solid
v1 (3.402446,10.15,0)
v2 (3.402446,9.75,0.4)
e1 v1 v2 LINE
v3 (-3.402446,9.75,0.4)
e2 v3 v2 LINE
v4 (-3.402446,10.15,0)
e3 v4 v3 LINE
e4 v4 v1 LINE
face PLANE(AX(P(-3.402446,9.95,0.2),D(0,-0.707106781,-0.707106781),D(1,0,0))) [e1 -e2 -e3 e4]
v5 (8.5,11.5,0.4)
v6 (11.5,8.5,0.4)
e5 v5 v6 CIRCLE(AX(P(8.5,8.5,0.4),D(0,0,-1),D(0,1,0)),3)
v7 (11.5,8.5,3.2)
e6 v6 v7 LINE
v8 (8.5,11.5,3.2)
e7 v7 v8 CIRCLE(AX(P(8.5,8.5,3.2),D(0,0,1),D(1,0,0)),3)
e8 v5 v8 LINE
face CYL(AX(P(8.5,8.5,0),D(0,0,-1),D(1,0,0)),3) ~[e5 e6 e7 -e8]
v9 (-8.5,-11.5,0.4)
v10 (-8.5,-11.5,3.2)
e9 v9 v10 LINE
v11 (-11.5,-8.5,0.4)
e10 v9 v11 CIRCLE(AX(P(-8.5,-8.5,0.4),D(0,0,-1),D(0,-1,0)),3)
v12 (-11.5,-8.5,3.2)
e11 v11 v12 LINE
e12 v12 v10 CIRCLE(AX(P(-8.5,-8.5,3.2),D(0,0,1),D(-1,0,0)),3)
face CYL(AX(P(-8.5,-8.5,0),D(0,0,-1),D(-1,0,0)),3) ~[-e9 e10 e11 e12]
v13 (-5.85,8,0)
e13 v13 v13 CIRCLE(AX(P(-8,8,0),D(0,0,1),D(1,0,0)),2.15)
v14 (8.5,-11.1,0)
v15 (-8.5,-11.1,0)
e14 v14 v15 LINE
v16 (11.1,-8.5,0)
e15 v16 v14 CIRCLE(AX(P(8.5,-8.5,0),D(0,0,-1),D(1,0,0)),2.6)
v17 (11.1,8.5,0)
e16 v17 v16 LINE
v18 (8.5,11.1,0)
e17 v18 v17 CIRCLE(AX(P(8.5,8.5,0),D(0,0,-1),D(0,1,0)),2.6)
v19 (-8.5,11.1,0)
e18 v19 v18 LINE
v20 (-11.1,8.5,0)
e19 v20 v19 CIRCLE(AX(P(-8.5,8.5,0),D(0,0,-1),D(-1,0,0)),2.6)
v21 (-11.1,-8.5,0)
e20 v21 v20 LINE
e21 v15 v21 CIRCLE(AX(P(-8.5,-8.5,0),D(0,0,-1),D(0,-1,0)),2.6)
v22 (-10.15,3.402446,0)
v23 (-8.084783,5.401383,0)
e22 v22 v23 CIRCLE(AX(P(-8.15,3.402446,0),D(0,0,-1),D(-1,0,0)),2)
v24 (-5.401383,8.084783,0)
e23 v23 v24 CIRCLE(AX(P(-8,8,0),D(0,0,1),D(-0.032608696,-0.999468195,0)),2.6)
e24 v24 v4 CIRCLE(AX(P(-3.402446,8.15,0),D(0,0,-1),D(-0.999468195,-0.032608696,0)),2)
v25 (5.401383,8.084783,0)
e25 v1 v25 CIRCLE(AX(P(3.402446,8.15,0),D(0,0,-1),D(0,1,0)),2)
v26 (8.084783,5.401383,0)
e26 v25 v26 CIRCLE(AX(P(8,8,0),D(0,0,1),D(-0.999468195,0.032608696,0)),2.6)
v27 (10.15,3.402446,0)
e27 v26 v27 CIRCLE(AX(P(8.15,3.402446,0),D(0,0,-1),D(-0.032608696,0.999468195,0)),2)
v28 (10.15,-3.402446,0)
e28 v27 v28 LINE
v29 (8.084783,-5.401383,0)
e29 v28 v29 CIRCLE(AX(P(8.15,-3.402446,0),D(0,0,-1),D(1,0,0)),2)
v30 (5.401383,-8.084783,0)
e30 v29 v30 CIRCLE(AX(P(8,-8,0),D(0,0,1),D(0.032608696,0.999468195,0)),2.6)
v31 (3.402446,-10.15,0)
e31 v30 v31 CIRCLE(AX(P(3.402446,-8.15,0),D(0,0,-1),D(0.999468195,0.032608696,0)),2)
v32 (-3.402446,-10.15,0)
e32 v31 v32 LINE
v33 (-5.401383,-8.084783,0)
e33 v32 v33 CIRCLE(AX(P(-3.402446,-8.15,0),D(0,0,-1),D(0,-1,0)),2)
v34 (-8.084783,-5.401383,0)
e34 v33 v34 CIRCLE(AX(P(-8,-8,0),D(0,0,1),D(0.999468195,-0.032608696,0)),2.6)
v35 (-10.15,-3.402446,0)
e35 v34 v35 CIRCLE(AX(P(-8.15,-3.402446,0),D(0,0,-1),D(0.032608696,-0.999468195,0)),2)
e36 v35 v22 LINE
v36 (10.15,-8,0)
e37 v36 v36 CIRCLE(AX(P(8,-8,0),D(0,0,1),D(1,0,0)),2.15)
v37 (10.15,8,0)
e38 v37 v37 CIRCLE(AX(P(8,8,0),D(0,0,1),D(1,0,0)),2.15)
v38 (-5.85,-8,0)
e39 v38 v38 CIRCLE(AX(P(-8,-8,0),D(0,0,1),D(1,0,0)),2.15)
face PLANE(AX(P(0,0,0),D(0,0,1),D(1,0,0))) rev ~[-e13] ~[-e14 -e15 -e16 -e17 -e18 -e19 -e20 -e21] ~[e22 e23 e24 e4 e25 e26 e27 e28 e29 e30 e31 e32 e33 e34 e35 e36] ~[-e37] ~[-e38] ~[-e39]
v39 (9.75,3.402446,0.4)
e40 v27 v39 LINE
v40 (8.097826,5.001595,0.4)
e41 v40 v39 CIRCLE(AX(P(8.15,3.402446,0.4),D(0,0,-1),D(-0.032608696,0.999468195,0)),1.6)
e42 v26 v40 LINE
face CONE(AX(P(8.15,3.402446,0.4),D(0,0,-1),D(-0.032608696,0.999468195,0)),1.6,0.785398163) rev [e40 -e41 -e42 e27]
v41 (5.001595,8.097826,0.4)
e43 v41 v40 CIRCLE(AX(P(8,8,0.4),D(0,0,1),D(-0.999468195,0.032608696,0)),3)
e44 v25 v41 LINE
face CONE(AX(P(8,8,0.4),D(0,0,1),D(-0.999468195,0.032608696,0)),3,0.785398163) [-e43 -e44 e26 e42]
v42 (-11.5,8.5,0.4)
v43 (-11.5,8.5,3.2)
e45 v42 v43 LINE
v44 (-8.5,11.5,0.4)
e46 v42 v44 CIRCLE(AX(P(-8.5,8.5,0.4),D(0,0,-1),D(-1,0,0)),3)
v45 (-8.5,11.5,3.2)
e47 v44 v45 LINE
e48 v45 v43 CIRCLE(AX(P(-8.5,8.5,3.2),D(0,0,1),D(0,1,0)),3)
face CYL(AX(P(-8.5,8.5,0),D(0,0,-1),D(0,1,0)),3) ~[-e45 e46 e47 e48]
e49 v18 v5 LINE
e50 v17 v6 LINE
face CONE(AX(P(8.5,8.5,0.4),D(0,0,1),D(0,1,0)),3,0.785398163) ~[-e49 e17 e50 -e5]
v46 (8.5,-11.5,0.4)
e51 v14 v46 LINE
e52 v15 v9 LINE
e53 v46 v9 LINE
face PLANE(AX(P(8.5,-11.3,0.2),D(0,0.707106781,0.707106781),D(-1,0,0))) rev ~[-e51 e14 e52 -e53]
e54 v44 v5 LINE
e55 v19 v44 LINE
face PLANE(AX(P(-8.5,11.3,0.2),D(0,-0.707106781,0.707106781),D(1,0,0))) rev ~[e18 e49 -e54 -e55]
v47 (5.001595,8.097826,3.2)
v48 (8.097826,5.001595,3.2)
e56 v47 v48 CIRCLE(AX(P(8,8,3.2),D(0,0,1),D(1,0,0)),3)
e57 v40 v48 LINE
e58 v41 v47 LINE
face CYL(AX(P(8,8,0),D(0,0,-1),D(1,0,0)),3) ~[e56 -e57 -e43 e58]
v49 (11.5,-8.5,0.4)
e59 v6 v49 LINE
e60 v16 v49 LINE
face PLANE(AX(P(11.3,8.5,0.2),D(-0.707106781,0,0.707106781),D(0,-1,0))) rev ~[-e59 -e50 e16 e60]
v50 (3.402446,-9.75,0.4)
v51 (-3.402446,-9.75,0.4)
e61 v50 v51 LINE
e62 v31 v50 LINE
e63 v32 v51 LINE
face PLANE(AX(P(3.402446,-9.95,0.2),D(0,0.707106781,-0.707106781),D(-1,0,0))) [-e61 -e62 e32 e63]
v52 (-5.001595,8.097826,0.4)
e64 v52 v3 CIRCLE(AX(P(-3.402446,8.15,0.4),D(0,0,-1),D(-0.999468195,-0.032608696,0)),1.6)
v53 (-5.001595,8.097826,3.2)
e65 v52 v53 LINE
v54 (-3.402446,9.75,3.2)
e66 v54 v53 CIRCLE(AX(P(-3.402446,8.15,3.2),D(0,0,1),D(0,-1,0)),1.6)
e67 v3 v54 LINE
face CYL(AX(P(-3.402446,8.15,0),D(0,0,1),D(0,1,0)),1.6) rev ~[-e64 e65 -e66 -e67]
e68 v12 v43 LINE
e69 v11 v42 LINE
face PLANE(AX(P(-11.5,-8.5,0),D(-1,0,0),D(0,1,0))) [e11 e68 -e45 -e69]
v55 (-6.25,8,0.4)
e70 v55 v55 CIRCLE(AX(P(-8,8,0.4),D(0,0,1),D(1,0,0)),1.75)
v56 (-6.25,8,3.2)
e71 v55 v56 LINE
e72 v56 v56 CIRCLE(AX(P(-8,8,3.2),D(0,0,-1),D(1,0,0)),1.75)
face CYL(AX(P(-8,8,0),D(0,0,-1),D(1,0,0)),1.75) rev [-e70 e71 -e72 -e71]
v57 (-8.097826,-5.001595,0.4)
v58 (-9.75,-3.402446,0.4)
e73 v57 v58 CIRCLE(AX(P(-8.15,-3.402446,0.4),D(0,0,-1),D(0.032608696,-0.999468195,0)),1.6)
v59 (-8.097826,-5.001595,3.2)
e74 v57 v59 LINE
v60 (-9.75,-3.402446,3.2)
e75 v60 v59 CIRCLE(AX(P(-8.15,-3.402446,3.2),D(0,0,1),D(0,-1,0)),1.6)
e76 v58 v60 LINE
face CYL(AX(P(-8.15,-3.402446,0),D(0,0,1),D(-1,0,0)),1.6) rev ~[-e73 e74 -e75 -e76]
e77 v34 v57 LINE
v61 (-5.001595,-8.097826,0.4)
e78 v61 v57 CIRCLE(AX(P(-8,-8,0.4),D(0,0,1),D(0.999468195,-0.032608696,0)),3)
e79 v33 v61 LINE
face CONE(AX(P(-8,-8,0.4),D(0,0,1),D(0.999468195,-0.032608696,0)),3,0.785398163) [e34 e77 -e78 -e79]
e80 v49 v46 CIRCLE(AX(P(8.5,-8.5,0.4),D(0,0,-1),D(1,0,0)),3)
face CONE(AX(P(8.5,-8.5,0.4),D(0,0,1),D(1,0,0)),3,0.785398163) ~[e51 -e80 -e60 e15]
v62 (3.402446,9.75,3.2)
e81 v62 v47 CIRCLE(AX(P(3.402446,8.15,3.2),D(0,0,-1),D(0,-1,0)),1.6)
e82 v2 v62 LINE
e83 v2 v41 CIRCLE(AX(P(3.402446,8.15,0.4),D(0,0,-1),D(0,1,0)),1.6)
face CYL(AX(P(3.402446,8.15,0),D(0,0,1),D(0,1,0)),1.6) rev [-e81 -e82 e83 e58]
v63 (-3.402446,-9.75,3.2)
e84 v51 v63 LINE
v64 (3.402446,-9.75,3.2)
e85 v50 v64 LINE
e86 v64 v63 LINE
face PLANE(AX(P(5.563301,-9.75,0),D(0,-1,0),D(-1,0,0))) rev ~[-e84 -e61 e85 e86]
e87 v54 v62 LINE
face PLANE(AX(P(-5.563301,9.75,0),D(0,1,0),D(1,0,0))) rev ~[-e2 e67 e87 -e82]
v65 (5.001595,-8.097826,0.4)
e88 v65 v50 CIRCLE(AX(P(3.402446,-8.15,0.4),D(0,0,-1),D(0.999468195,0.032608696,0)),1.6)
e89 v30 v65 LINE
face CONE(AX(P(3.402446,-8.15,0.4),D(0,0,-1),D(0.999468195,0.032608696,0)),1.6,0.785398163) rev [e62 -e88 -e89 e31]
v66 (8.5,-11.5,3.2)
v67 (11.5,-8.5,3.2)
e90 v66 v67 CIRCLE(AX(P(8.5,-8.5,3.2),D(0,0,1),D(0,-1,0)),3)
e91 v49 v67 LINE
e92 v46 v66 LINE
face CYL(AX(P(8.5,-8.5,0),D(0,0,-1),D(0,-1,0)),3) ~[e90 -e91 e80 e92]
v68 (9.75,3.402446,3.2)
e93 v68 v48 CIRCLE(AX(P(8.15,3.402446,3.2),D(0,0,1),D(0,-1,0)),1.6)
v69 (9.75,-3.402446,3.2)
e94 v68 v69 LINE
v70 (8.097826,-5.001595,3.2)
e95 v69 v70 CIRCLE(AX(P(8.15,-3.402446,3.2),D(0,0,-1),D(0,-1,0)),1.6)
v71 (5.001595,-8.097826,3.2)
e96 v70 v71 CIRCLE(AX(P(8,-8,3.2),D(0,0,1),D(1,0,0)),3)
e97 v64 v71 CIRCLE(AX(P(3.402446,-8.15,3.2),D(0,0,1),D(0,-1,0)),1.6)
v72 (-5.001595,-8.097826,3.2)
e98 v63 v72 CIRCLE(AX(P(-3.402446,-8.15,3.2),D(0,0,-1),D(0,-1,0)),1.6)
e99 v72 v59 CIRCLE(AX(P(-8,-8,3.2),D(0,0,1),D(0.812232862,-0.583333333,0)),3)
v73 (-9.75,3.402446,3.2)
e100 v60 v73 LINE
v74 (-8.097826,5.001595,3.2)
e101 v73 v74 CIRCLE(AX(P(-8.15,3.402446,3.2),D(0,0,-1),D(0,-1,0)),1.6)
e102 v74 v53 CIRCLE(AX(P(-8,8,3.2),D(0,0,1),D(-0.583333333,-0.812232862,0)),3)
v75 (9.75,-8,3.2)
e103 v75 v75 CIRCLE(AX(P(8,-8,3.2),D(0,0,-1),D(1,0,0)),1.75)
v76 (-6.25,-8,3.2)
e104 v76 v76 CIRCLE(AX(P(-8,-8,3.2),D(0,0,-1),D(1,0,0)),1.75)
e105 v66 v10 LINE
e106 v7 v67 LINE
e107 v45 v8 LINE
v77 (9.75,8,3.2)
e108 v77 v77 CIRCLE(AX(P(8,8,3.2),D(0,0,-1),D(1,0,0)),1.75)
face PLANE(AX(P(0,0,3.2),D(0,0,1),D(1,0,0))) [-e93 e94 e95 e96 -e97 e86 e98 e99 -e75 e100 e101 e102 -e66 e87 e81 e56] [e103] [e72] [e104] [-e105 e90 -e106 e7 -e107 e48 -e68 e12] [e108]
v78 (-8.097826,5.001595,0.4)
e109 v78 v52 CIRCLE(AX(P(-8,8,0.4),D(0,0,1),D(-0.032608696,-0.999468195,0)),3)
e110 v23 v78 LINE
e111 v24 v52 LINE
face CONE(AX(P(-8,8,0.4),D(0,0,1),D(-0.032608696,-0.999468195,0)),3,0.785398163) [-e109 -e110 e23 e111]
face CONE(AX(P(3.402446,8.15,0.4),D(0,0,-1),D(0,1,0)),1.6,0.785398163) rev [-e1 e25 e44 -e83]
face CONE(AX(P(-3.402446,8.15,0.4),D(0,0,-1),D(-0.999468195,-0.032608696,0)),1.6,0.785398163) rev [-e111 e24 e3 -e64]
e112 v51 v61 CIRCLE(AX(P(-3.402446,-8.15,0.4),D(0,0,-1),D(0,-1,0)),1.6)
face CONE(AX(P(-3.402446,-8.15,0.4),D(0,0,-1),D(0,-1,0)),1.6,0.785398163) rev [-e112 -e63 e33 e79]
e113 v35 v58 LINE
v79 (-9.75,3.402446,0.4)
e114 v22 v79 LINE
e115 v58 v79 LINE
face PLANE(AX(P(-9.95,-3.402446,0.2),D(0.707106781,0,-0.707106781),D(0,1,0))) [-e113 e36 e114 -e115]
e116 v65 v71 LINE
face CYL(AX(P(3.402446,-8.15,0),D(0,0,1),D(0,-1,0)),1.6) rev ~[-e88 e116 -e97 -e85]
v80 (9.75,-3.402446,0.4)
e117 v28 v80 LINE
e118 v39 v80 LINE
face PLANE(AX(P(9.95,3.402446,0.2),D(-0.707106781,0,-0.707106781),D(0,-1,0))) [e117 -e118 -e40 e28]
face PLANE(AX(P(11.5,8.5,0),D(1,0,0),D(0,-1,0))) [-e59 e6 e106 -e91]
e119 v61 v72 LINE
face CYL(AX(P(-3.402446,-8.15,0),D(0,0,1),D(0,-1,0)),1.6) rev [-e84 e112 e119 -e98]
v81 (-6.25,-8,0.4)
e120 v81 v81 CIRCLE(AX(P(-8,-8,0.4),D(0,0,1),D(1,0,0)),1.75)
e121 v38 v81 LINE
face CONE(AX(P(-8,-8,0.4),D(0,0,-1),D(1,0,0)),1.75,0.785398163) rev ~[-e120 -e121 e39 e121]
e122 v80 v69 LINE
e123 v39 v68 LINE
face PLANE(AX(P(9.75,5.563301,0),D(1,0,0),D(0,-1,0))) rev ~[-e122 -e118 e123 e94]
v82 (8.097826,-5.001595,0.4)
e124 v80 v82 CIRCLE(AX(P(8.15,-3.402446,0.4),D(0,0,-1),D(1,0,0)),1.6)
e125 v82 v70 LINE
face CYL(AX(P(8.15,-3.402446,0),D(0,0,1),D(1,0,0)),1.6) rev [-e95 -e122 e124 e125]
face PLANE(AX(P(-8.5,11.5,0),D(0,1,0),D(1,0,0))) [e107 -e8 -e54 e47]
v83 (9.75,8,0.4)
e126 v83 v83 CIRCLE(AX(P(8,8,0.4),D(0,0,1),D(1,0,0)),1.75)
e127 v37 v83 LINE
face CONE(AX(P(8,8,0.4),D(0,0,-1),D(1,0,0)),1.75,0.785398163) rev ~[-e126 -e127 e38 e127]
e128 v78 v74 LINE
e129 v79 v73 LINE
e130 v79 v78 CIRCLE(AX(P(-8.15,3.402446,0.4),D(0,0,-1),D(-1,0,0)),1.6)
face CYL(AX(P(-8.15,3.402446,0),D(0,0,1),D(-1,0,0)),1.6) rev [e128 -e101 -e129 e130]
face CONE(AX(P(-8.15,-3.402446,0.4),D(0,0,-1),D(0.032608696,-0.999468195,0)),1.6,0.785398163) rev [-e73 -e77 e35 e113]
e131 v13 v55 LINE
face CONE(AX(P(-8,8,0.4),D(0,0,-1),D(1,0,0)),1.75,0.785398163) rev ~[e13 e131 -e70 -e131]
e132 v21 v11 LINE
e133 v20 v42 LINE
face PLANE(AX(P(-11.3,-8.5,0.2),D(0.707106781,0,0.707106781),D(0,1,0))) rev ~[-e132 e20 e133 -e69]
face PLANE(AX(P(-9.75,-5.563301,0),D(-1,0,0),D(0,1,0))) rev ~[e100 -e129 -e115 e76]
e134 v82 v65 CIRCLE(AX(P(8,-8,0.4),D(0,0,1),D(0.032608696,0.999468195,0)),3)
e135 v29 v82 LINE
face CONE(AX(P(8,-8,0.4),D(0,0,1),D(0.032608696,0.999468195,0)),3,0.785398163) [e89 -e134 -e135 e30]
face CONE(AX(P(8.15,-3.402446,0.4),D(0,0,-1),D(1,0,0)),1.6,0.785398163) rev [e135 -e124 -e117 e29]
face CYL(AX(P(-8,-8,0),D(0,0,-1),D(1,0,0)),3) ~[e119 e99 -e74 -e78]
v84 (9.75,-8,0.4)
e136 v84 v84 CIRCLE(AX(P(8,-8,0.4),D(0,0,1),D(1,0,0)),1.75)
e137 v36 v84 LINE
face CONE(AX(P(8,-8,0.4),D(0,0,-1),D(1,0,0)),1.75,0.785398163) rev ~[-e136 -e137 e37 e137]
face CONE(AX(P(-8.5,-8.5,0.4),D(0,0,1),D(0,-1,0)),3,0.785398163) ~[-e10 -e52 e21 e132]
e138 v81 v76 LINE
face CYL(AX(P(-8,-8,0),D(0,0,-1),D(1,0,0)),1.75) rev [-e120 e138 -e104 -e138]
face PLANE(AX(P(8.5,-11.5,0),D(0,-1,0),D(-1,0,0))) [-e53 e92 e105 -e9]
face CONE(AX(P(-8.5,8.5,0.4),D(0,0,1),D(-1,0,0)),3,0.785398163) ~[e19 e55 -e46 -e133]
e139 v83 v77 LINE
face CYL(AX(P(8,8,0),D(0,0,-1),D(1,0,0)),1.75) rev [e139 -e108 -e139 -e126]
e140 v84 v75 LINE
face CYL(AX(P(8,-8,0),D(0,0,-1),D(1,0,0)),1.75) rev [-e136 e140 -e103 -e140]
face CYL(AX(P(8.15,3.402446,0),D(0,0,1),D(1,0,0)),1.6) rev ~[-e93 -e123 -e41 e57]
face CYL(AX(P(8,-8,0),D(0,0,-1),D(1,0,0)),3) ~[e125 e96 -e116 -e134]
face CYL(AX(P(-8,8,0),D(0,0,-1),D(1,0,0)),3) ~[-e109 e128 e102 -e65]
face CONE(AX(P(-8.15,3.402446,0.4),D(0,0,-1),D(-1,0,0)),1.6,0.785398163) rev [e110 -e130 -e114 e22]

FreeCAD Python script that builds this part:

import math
import FreeCAD as App
import Part
import Sketcher
from FreeCAD import Vector


def edges_at(feature, points):
    """Names of the edges that pass closest to the given points."""
    edges = feature.Shape.Edges
    near = lambda p: min(range(len(edges)), key=lambda i: edges[i].distToShape(Part.Vertex(*p))[0])
    return sorted({f"Edge{near(p) + 1}" for p in points})

doc = App.newDocument("Part")
body = doc.addObject("PartDesign::Body", "Body")

sketch1 = body.newObject("Sketcher::SketchObject", "Sketch")
sketch1.AttachmentSupport = (doc.getObject("XY_Plane"), [""])
sketch1.MapMode = "FlatFace"
sketch1.addGeometry([
    Part.LineSegment(Vector(-8.5, -11.5, 0), Vector(8.5, -11.5, 0)),
    Part.ArcOfCircle(Part.Circle(Vector(8.5, -8.5, 0), Vector(0, 0, 1), 3), math.radians(-90), math.radians(0)),
    Part.LineSegment(Vector(11.5, -8.5, 0), Vector(11.5, 8.5, 0)),
    Part.ArcOfCircle(Part.Circle(Vector(8.5, 8.5, 0), Vector(0, 0, 1), 3), math.radians(0), math.radians(90)),
    Part.LineSegment(Vector(8.5, 11.5, 0), Vector(-8.5, 11.5, 0)),
    Part.ArcOfCircle(Part.Circle(Vector(-8.5, 8.5, 0), Vector(0, 0, 1), 3), math.radians(90), math.radians(180)),
    Part.LineSegment(Vector(-11.5, 8.5, 0), Vector(-11.5, -8.5, 0)),
    Part.ArcOfCircle(Part.Circle(Vector(-8.5, -8.5, 0), Vector(0, 0, 1), 3), math.radians(180), math.radians(270)),
    Part.LineSegment(Vector(-9.8, -5.6, 0), Vector(-9.8, 5.6, 0)),
    Part.ArcOfCircle(Part.Circle(Vector(-8, 8, 0), Vector(0, 0, 1), 3), math.radians(-126), math.radians(36)),
    Part.LineSegment(Vector(-5.6, 9.8, 0), Vector(5.6, 9.8, 0)),
    Part.ArcOfCircle(Part.Circle(Vector(8, 8, 0), Vector(0, 0, 1), 3), math.radians(144), math.radians(306)),
    Part.LineSegment(Vector(9.8, 5.6, 0), Vector(9.8, -5.6, 0)),
    Part.ArcOfCircle(Part.Circle(Vector(8, -8, 0), Vector(0, 0, 1), 3), math.radians(54), math.radians(216)),
    Part.LineSegment(Vector(5.6, -9.8, 0), Vector(-5.6, -9.8, 0)),
    Part.ArcOfCircle(Part.Circle(Vector(-8, -8, 0), Vector(0, 0, 1), 3), math.radians(-36), math.radians(126)),
    Part.Circle(Vector(-8, 8, 0), Vector(0, 0, 1), 1.8),
    Part.Circle(Vector(-8, -8, 0), Vector(0, 0, 1), 1.8),
    Part.Circle(Vector(8, -8, 0), Vector(0, 0, 1), 1.8),
    Part.Circle(Vector(8, 8, 0), Vector(0, 0, 1), 1.8),
], False)
sketch1.addConstraint([
    Sketcher.Constraint("Tangent", 0, 2, 1, 1),
    Sketcher.Constraint("Tangent", 1, 2, 2, 1),
    Sketcher.Constraint("Tangent", 2, 2, 3, 1),
    Sketcher.Constraint("Tangent", 3, 2, 4, 1),
    Sketcher.Constraint("Tangent", 4, 2, 5, 1),
    Sketcher.Constraint("Tangent", 5, 2, 6, 1),
    Sketcher.Constraint("Tangent", 6, 2, 7, 1),
    Sketcher.Constraint("Tangent", 7, 2, 0, 1),
    Sketcher.Constraint("Coincident", 8, 2, 9, 1),
    Sketcher.Constraint("Coincident", 9, 2, 10, 1),
    Sketcher.Constraint("Coincident", 10, 2, 11, 1),
    Sketcher.Constraint("Coincident", 11, 2, 12, 1),
    Sketcher.Constraint("Coincident", 12, 2, 13, 1),
    Sketcher.Constraint("Coincident", 13, 2, 14, 1),
    Sketcher.Constraint("Coincident", 14, 2, 15, 1),
    Sketcher.Constraint("Coincident", 15, 2, 8, 1),
    Sketcher.Constraint("Horizontal", 0),
    Sketcher.Constraint("Vertical", 2),
    Sketcher.Constraint("Horizontal", 4),
    Sketcher.Constraint("Vertical", 6),
    Sketcher.Constraint("Vertical", 8),
    Sketcher.Constraint("Horizontal", 10),
    Sketcher.Constraint("Vertical", 12),
    Sketcher.Constraint("Horizontal", 14),
    Sketcher.Constraint("Coincident", 16, 3, 9, 3),
    Sketcher.Constraint("Coincident", 17, 3, 15, 3),
    Sketcher.Constraint("Coincident", 18, 3, 13, 3),
    Sketcher.Constraint("Coincident", 19, 3, 11, 3),
    Sketcher.Constraint("Equal", 1, 3),
    Sketcher.Constraint("Equal", 3, 5),
    Sketcher.Constraint("Equal", 5, 7),
    Sketcher.Constraint("Equal", 7, 9),
    Sketcher.Constraint("Equal", 9, 11),
    Sketcher.Constraint("Equal", 11, 13),
    Sketcher.Constraint("Equal", 13, 15),
    Sketcher.Constraint("Equal", 16, 17),
    Sketcher.Constraint("Equal", 17, 18),
    Sketcher.Constraint("Equal", 18, 19),
    Sketcher.Constraint("Symmetric", 1, 3, 5, 3, -1, 1),
    Sketcher.Constraint("Symmetric", 9, 3, 13, 3, -1, 1),
    Sketcher.Constraint("Symmetric", 11, 3, 15, 3, -1, 1),
    Sketcher.Constraint("Symmetric", 9, 3, 11, 3, -2),
    Sketcher.Constraint("Horizontal", 8, 2, 11, 2),
    Sketcher.Constraint("Vertical", 10, 2, 13, 2),
    Sketcher.Constraint("Equal", 4, 2),
    Sketcher.Constraint("Equal", 14, 8),
    Sketcher.Constraint("Radius", 1, 3.0),
    Sketcher.Constraint("Diameter", 16, 3.5),
    Sketcher.Constraint("DistanceX", 9, 3, 11, 3, 16.0),
    Sketcher.Constraint("DistanceY", 13, 3, 11, 3, 16.0),
    Sketcher.Constraint("DistanceY", 0, 2, 13, 3, 3.5),
    Sketcher.Constraint("DistanceX", 8, 2, -1, 1, 9.75),
])
pad1 = body.newObject("PartDesign::Pad", "Pad")
pad1.Profile = sketch1
pad1.Length = 3.2
doc.recompute()

fillet = body.newObject("PartDesign::Fillet", "Fillet")
fillet.Base = (pad1, edges_at(pad1, [
    (5.563, 9.75, 1.6),
    (-5.563, 9.75, 1.6),
    (-9.75, 5.563, 1.6),
    (-9.75, -5.563, 1.6),
    (-5.563, -9.75, 1.6),
    (5.563, -9.75, 1.6),
    (9.75, -5.563, 1.6),
    (9.75, 5.563, 1.6),
]))
fillet.Radius = 1.6
doc.recompute()

chamfer = body.newObject("PartDesign::Chamfer", "Chamfer")
chamfer.Base = (fillet, edges_at(fillet, [
    (-9.75, -8, 0),
    (6.25, -8, 0),
    (6.25, 8, 0),
    (-9.75, 8, 0),
    (0, 9.75, 0),
    (5.879, 5.879, 0),
    (9.75, 0, 0),
    (5.879, -5.879, 0),
    (0, -9.75, 0),
    (-5.879, -5.879, 0),
    (-9.75, 0, 0),
    (-5.879, 5.879, 0),
    (0, 11.5, 0),
    (-10.621, 10.621, 0),
    (-11.5, 0, 0),
    (-10.621, -10.621, 0),
    (0, -11.5, 0),
    (10.621, -10.621, 0),
    (11.5, 0, 0),
    (10.621, 10.621, 0),
]))
chamfer.Size = 0.4

doc.recompute()
